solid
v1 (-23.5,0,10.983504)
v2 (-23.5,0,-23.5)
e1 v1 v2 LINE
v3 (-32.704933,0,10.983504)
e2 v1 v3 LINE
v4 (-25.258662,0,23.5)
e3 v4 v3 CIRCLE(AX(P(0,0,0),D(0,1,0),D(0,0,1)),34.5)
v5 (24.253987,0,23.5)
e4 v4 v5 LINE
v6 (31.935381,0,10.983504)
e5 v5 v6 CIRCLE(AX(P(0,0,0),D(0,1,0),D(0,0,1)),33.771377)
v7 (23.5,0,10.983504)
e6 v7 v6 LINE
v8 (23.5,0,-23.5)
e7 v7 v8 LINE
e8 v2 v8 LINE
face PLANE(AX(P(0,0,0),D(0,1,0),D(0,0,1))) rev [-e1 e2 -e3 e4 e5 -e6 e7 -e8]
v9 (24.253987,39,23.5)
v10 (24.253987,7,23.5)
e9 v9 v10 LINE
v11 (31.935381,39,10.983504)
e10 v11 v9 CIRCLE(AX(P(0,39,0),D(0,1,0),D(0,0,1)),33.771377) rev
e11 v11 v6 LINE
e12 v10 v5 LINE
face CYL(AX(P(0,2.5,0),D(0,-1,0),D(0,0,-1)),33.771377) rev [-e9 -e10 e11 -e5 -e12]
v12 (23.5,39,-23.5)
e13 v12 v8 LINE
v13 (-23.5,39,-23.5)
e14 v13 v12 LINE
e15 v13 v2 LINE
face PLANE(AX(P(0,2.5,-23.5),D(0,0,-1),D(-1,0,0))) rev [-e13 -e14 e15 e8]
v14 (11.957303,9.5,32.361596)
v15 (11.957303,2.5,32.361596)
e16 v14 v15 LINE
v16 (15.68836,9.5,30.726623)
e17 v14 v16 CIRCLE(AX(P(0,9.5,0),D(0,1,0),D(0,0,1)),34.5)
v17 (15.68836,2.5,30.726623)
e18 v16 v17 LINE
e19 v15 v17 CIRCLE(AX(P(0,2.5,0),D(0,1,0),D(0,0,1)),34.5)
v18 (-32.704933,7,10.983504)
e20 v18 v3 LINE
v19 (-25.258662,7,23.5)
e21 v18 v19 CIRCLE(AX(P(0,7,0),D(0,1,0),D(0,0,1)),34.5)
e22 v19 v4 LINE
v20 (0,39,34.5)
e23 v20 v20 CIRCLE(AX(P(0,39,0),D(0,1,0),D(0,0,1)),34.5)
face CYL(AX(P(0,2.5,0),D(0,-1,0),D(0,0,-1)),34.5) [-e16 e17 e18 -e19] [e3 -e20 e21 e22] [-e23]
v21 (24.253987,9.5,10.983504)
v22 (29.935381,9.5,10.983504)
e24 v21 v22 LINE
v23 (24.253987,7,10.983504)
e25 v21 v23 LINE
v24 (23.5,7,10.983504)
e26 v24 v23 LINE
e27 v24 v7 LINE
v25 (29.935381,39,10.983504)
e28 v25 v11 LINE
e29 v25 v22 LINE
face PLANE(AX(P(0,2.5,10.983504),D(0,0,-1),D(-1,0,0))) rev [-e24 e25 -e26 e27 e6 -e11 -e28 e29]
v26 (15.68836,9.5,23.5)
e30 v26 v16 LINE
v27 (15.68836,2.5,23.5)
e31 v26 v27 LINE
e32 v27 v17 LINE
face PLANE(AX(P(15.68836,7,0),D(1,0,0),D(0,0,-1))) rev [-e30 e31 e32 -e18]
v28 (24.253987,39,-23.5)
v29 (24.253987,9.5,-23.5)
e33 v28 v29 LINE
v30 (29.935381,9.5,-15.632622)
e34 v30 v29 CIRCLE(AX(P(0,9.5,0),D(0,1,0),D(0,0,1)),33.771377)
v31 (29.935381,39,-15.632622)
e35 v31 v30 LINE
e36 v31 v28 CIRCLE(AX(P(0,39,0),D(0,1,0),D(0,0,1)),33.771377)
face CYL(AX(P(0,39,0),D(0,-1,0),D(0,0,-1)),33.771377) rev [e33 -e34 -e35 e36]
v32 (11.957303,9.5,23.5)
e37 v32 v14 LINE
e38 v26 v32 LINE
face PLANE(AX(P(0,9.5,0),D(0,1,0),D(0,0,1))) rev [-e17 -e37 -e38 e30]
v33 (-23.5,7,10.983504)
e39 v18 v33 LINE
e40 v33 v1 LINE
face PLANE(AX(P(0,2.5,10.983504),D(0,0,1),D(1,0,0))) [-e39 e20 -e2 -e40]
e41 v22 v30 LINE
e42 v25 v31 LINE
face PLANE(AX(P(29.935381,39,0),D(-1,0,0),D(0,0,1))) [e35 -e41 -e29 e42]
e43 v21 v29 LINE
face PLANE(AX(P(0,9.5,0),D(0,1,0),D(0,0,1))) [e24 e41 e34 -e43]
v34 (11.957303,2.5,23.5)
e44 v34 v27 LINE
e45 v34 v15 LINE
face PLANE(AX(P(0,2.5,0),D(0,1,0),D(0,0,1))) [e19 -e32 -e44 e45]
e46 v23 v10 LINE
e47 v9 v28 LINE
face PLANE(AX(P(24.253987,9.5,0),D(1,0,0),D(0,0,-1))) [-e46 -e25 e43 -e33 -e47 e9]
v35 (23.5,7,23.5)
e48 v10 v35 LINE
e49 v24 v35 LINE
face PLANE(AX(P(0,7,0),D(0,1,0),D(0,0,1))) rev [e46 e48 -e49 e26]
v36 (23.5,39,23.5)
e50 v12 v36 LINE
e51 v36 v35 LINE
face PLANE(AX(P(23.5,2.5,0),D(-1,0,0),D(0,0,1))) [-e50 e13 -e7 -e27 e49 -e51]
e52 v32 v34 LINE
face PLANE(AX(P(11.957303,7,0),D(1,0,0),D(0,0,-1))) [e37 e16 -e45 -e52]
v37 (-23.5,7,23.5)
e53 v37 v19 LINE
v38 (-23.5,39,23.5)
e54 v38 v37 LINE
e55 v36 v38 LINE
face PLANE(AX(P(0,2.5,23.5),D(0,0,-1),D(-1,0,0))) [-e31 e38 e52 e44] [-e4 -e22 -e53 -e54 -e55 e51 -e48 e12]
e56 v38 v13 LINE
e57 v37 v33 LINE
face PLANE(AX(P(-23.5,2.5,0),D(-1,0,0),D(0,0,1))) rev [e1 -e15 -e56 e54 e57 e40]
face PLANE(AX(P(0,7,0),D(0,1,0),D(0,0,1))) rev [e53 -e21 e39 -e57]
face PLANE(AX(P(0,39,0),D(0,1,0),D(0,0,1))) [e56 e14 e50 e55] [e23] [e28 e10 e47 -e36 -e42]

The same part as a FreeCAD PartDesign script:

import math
import FreeCAD as App
import Part
import Sketcher

V = App.Vector


def add_polygon(sketch, points):
    """Adds a closed chain of lines whose ends are joined by coincident constraints."""
    first, n = sketch.GeometryCount, len(points)
    for a, b in zip(points, points[1:] + points[:1]):
        sketch.addGeometry(Part.LineSegment(App.Vector(*a, 0), App.Vector(*b, 0)), False)
    for i in range(n):
        sketch.addConstraint(Sketcher.Constraint("Coincident", first + i, 2, first + (i + 1) % n, 1))

doc = App.newDocument("Part")
body = doc.addObject("PartDesign::Body", "Body")

sketch1 = body.newObject("Sketcher::SketchObject", "Sketch")
sketch1.AttachmentSupport = (doc.getObject("XZ_Plane"), [""])
sketch1.MapMode = "FlatFace"
sketch1.addGeometry(Part.ArcOfCircle(Part.Circle(V(0, 0, 0), V(0, 0, 1), 34), math.radians(0), math.radians(137)), False)
sketch1.addGeometry(Part.ArcOfCircle(Part.Circle(V(0, 0, 0), V(0, 0, 1), 34), math.radians(161), math.radians(360)), False)
sketch1.addGeometry(Part.LineSegment(V(-33, 11, 0), V(-24, 11, 0)), False)
sketch1.addGeometry(Part.LineSegment(V(-24, 11, 0), V(-24, -24, 0)), False)
sketch1.addGeometry(Part.LineSegment(V(-24, -24, 0), V(24, -24, 0)), False)
sketch1.addGeometry(Part.LineSegment(V(24, -24, 0), V(24, 11, 0)), False)
sketch1.addGeometry(Part.LineSegment(V(24, 11, 0), V(32, 11, 0)), False)
sketch1.addGeometry(Part.ArcOfCircle(Part.Circle(V(0, 0, 0), V(0, 0, 1), 34), math.radians(19), math.radians(44)), False)
sketch1.addGeometry(Part.LineSegment(V(24, 24, 0), V(-25, 24, 0)), False)
sketch1.addConstraint(Sketcher.Constraint("Tangent", 0, 1, 1, 2))
sketch1.addConstraint(Sketcher.Constraint("Coincident", 1, 1, 2, 1))
sketch1.addConstraint(Sketcher.Constraint("Coincident", 2, 2, 3, 1))
sketch1.addConstraint(Sketcher.Constraint("Coincident", 3, 2, 4, 1))
sketch1.addConstraint(Sketcher.Constraint("Coincident", 4, 2, 5, 1))
sketch1.addConstraint(Sketcher.Constraint("Coincident", 5, 2, 6, 1))
sketch1.addConstraint(Sketcher.Constraint("Coincident", 6, 2, 7, 1))
sketch1.addConstraint(Sketcher.Constraint("Coincident", 7, 2, 8, 1))
sketch1.addConstraint(Sketcher.Constraint("Coincident", 8, 2, 0, 2))
sketch1.addConstraint(Sketcher.Constraint("Horizontal", 2))
sketch1.addConstraint(Sketcher.Constraint("Vertical", 3))
sketch1.addConstraint(Sketcher.Constraint("Horizontal", 4))
sketch1.addConstraint(Sketcher.Constraint("Vertical", 5))
sketch1.addConstraint(Sketcher.Constraint("Horizontal", 6))
sketch1.addConstraint(Sketcher.Constraint("Horizontal", 8))
sketch1.addConstraint(Sketcher.Constraint("Coincident", 0, 3, -1, 1))
sketch1.addConstraint(Sketcher.Constraint("Coincident", 7, 3, -1, 1))
sketch1.addConstraint(Sketcher.Constraint("Equal", 0, 1))
sketch1.addConstraint(Sketcher.Constraint("Symmetric", 2, 2, 5, 2, -2))
sketch1.addConstraint(Sketcher.Constraint("PointOnObject", 0, 1, -1))
sketch1.addConstraint(Sketcher.Constraint("Radius", 0, 34.5))
sketch1.addConstraint(Sketcher.Constraint("DistanceX", 4, 1, 4, 2, 47.0))
sketch1.addConstraint(Sketcher.Constraint("DistanceY", 3, 2, -1, 1, 23.5))
sketch1.addConstraint(Sketcher.Constraint("DistanceY", -1, 1, 7, 2, 23.5))
sketch1.addConstraint(Sketcher.Constraint("Radius", 7, 33.771377))
sketch1.addConstraint(Sketcher.Constraint("DistanceX", 6, 1, 6, 2, 8.435381))
pad1 = body.newObject("PartDesign::Pad", "Pad")
pad1.Profile = sketch1
pad1.Length = 2.5
pad1.Reversed = True

sketch2 = body.newObject("Sketcher::SketchObject", "Sketch001")
sketch2.AttachmentSupport = (doc.getObject("XZ_Plane"), [""])
sketch2.MapMode = "FlatFace"
sketch2.AttachmentOffset = App.Placement(V(0, 0, -2.5), App.Rotation())
sketch2.addGeometry(Part.LineSegment(V(24, -24, 0), V(24, 11, 0)), False)
sketch2.addGeometry(Part.LineSegment(V(24, 11, 0), V(32, 11, 0)), False)
sketch2.addGeometry(Part.ArcOfCircle(Part.Circle(V(0, 0, 0), V(0, 0, 1), 34), math.radians(19), math.radians(44)), False)
sketch2.addGeometry(Part.LineSegment(V(24, 24, 0), V(16, 24, 0)), False)
sketch2.addGeometry(Part.LineSegment(V(16, 24, 0), V(16, 31, 0)), False)
sketch2.addGeometry(Part.ArcOfCircle(Part.Circle(V(0, 0, 0), V(0, 0, 1), 34), math.radians(161), math.radians(423)), False)
sketch2.addGeometry(Part.LineSegment(V(-33, 11, 0), V(-24, 11, 0)), False)
sketch2.addGeometry(Part.LineSegment(V(-24, 11, 0), V(-24, -24, 0)), False)
sketch2.addGeometry(Part.LineSegment(V(-24, -24, 0), V(24, -24, 0)), False)
sketch2.addGeometry(Part.LineSegment(V(12, 24, 0), V(-25, 24, 0)), False)
sketch2.addGeometry(Part.ArcOfCircle(Part.Circle(V(0, 0, 0), V(0, 0, 1), 34), math.radians(70), math.radians(137)), False)
sketch2.addGeometry(Part.LineSegment(V(12, 32, 0), V(12, 24, 0)), False)
sketch2.addConstraint(Sketcher.Constraint("Coincident", 0, 2, 1, 1))
sketch2.addConstraint(Sketcher.Constraint("Coincident", 1, 2, 2, 1))
sketch2.addConstraint(Sketcher.Constraint("Coincident", 2, 2, 3, 1))
sketch2.addConstraint(Sketcher.Constraint("Coincident", 3, 2, 4, 1))
sketch2.addConstraint(Sketcher.Constraint("Coincident", 4, 2, 5, 2))
sketch2.addConstraint(Sketcher.Constraint("Coincident", 5, 1, 6, 1))
sketch2.addConstraint(Sketcher.Constraint("Coincident", 6, 2, 7, 1))
sketch2.addConstraint(Sketcher.Constraint("Coincident", 7, 2, 8, 1))
sketch2.addConstraint(Sketcher.Constraint("Coincident", 8, 2, 0, 1))
sketch2.addConstraint(Sketcher.Constraint("Coincident", 9, 2, 10, 2))
sketch2.addConstraint(Sketcher.Constraint("Coincident", 10, 1, 11, 1))
sketch2.addConstraint(Sketcher.Constraint("Coincident", 11, 2, 9, 1))
sketch2.addConstraint(Sketcher.Constraint("Vertical", 0))
sketch2.addConstraint(Sketcher.Constraint("Horizontal", 1))
sketch2.addConstraint(Sketcher.Constraint("Horizontal", 3))
sketch2.addConstraint(Sketcher.Constraint("Vertical", 4))
sketch2.addConstraint(Sketcher.Constraint("Horizontal", 6))
sketch2.addConstraint(Sketcher.Constraint("Vertical", 7))
sketch2.addConstraint(Sketcher.Constraint("Horizontal", 8))
sketch2.addConstraint(Sketcher.Constraint("Horizontal", 9))
sketch2.addConstraint(Sketcher.Constraint("Vertical", 11))
sketch2.addConstraint(Sketcher.Constraint("Coincident", 2, 3, -1, 1))
sketch2.addConstraint(Sketcher.Constraint("Coincident", 5, 3, -1, 1))
sketch2.addConstraint(Sketcher.Constraint("Coincident", 10, 3, -1, 1))
sketch2.addConstraint(Sketcher.Constraint("Equal", 5, 10))
sketch2.addConstraint(Sketcher.Constraint("Symmetric", 0, 2, 6, 2, -2))
sketch2.addConstraint(Sketcher.Constraint("Horizontal", 3, 2, 9, 2))
sketch2.addConstraint(Sketcher.Constraint("Radius", 5, 34.5))
sketch2.addConstraint(Sketcher.Constraint("DistanceX", 8, 1, 8, 2, 47.0))
sketch2.addConstraint(Sketcher.Constraint("DistanceY", -1, 1, 2, 2, 23.5))
sketch2.addConstraint(Sketcher.Constraint("DistanceY", 7, 2, -1, 1, 23.5))
sketch2.addConstraint(Sketcher.Constraint("Radius", 2, 33.771377))
sketch2.addConstraint(Sketcher.Constraint("DistanceX", 1, 1, 1, 2, 8.435381))
sketch2.addConstraint(Sketcher.Constraint("DistanceX", 3, 2, 3, 1, 8.565627))
sketch2.addConstraint(Sketcher.Constraint("DistanceX", 9, 2, 9, 1, 37.215965))
pad2 = body.newObject("PartDesign::Pad", "Pad001")
pad2.Profile = sketch2
pad2.Length = 4.5
pad2.Reversed = True

sketch3 = body.newObject("Sketcher::SketchObject", "Sketch002")
sketch3.AttachmentSupport = (doc.getObject("XZ_Plane"), [""])
sketch3.MapMode = "FlatFace"
sketch3.AttachmentOffset = App.Placement(V(0, 0, -7), App.Rotation())
sketch3.addGeometry(Part.LineSegment(V(-24, 24, 0), V(-24, -24, 0)), False)
sketch3.addGeometry(Part.LineSegment(V(-24, -24, 0), V(24, -24, 0)), False)
sketch3.addGeometry(Part.LineSegment(V(24, -24, 0), V(24, 11, 0)), False)
sketch3.addGeometry(Part.LineSegment(V(24, 11, 0), V(24, 24, 0)), False)
sketch3.addGeometry(Part.LineSegment(V(24, 24, 0), V(16, 24, 0)), False)
sketch3.addGeometry(Part.LineSegment(V(16, 24, 0), V(16, 31, 0)), False)
sketch3.addGeometry(Part.ArcOfCircle(Part.Circle(V(0, 0, 0), V(0, 0, 1), 34), math.radians(161), math.radians(423)), False)
sketch3.addGeometry(Part.ArcOfCircle(Part.Circle(V(0, 0, 0), V(0, 0, 1), 35), math.radians(70), math.radians(161)), False)
sketch3.addGeometry(Part.LineSegment(V(12, 32, 0), V(12, 24, 0)), False)
sketch3.addGeometry(Part.LineSegment(V(12, 24, 0), V(-24, 24, 0)), False)
sketch3.addGeometry(Part.ArcOfCircle(Part.Circle(V(0, 0, 0), V(0, 0, 1), 34), math.radians(19), math.radians(44)), False)
sketch3.addGeometry(Part.LineSegment(V(24, 24, 0), V(24, 11, 0)), False)
sketch3.addGeometry(Part.LineSegment(V(24, 11, 0), V(32, 11, 0)), False)
sketch3.addConstraint(Sketcher.Constraint("Coincident", 0, 2, 1, 1))
sketch3.addConstraint(Sketcher.Constraint("Coincident", 1, 2, 2, 1))
sketch3.addConstraint(Sketcher.Constraint("Coincident", 2, 2, 3, 1))
sketch3.addConstraint(Sketcher.Constraint("Coincident", 3, 2, 4, 1))
sketch3.addConstraint(Sketcher.Constraint("Coincident", 4, 2, 5, 1))
sketch3.addConstraint(Sketcher.Constraint("Coincident", 5, 2, 6, 2))
sketch3.addConstraint(Sketcher.Constraint("Tangent", 6, 1, 7, 2))
sketch3.addConstraint(Sketcher.Constraint("Coincident", 7, 1, 8, 1))
sketch3.addConstraint(Sketcher.Constraint("Coincident", 8, 2, 9, 1))
sketch3.addConstraint(Sketcher.Constraint("Coincident", 9, 2, 0, 1))
sketch3.addConstraint(Sketcher.Constraint("Coincident", 10, 2, 11, 1))
sketch3.addConstraint(Sketcher.Constraint("Coincident", 11, 2, 12, 1))
sketch3.addConstraint(Sketcher.Constraint("Coincident", 12, 2, 10, 1))
sketch3.addConstraint(Sketcher.Constraint("Vertical", 0))
sketch3.addConstraint(Sketcher.Constraint("Horizontal", 1))
sketch3.addConstraint(Sketcher.Constraint("Vertical", 2))
sketch3.addConstraint(Sketcher.Constraint("Vertical", 3))
sketch3.addConstraint(Sketcher.Constraint("Horizontal", 4))
sketch3.addConstraint(Sketcher.Constraint("Vertical", 5))
sketch3.addConstraint(Sketcher.Constraint("Vertical", 8))
sketch3.addConstraint(Sketcher.Constraint("Horizontal", 9))
sketch3.addConstraint(Sketcher.Constraint("Vertical", 11))
sketch3.addConstraint(Sketcher.Constraint("Horizontal", 12))
sketch3.addConstraint(Sketcher.Constraint("Coincident", 6, 3, -1, 1))
sketch3.addConstraint(Sketcher.Constraint("Coincident", 10, 3, -1, 1))
sketch3.addConstraint(Sketcher.Constraint("Equal", 6, 7))
sketch3.addConstraint(Sketcher.Constraint("Symmetric", 0, 2, 3, 2, -1, 1))
sketch3.addConstraint(Sketcher.Constraint("Horizontal", 2, 2, 6, 1))
sketch3.addConstraint(Sketcher.Constraint("Horizontal", 4, 2, 8, 2))
sketch3.addConstraint(Sketcher.Constraint("Horizontal", 9, 2, 10, 2))
sketch3.addConstraint(Sketcher.Constraint("Horizontal", 6, 1, 11, 2))
sketch3.addConstraint(Sketcher.Constraint("Equal", 1, 0))
sketch3.addConstraint(Sketcher.Constraint("Radius", 6, 34.5))
sketch3.addConstraint(Sketcher.Constraint("DistanceX", 1, 1, 1, 2, 47.0))
sketch3.addConstraint(Sketcher.Constraint("Radius", 10, 33.771377))
sketch3.addConstraint(Sketcher.Constraint("DistanceX", 4, 2, 4, 1, 7.81164))
sketch3.addConstraint(Sketcher.Constraint("DistanceX", 9, 2, 9, 1, 35.457303))
sketch3.addConstraint(Sketcher.Constraint("DistanceX", 12, 1, 12, 2, 7.681394))
pad3 = body.newObject("PartDesign::Pad", "Pad002")
pad3.Profile = sketch3
pad3.Length = 2.5
pad3.Reversed = True

sketch4 = body.newObject("Sketcher::SketchObject", "Sketch003")
sketch4.AttachmentSupport = (doc.getObject("XZ_Plane"), [""])
sketch4.MapMode = "FlatFace"
sketch4.AttachmentOffset = App.Placement(V(0, 0, -9.5), App.Rotation())
sketch4.addGeometry(Part.ArcOfCircle(Part.Circle(V(0, 0, 0), V(0, 0, 1), 34.5), math.radians(70), math.radians(360)), False)
sketch4.addGeometry(Part.ArcOfCircle(Part.Circle(V(0, 0, 0), V(0, 0, 1), 34.5), math.radians(62.95), math.radians(69.72)), False)
sketch4.addGeometry(Part.ArcOfCircle(Part.Circle(V(0, 0, 0), V(0, 0, 1), 34.5), math.radians(0), math.radians(63)), False)
add_polygon(sketch4, [(-23.5, 23.5), (-23.5, -23.5), (23.5, -23.5), (23.5, 23.5)])
sketch4.addGeometry(Part.LineSegment(V(29.9, 11, 0), V(31.9, 11, 0)), False)
sketch4.addGeometry(Part.ArcOfCircle(Part.Circle(V(0, 0, 0), V(0, 0, 1), 33.8), math.radians(19), math.radians(44)), False)
sketch4.addGeometry(Part.LineSegment(V(24.3, 23.5, 0), V(24.3, -23.5, 0)), False)
sketch4.addGeometry(Part.ArcOfCircle(Part.Circle(V(0, 0, 0), V(0, 0, 1), 33.8), math.radians(-44.1), math.radians(-27.57)), False)
sketch4.addGeometry(Part.LineSegment(V(29.9, -15.6, 0), V(29.9, 11, 0)), False)
sketch4.addConstraint(Sketcher.Constraint("Tangent", 0, 1, 1, 2))
sketch4.addConstraint(Sketcher.Constraint("Tangent", 1, 1, 2, 2))
sketch4.addConstraint(Sketcher.Constraint("Tangent", 2, 1, 0, 2))
sketch4.addConstraint(Sketcher.Constraint("Coincident", 7, 2, 8, 1))
sketch4.addConstraint(Sketcher.Constraint("Coincident", 8, 2, 9, 1))
sketch4.addConstraint(Sketcher.Constraint("Coincident", 9, 2, 10, 1))
sketch4.addConstraint(Sketcher.Constraint("Coincident", 10, 2, 11, 1))
sketch4.addConstraint(Sketcher.Constraint("Coincident", 11, 2, 7, 1))
sketch4.addConstraint(Sketcher.Constraint("Vertical", 3))
sketch4.addConstraint(Sketcher.Constraint("Horizontal", 4))
sketch4.addConstraint(Sketcher.Constraint("Vertical", 5))
sketch4.addConstraint(Sketcher.Constraint("Horizontal", 6))
sketch4.addConstraint(Sketcher.Constraint("Horizontal", 7))
sketch4.addConstraint(Sketcher.Constraint("Vertical", 9))
sketch4.addConstraint(Sketcher.Constraint("Vertical", 11))
sketch4.addConstraint(Sketcher.Constraint("Coincident", 0, 3, -1, 1))
sketch4.addConstraint(Sketcher.Constraint("Coincident", 8, 3, -1, 1))
sketch4.addConstraint(Sketcher.Constraint("Coincident", 10, 3, -1, 1))
sketch4.addConstraint(Sketcher.Constraint("Equal", 8, 10))
sketch4.addConstraint(Sketcher.Constraint("Symmetric", 3, 2, 5, 2, -1, 1))
sketch4.addConstraint(Sketcher.Constraint("PointOnObject", 2, 1, -1))
sketch4.addConstraint(Sketcher.Constraint("Horizontal", 6, 2, 8, 2))
sketch4.addConstraint(Sketcher.Constraint("Equal", 6, 3))
sketch4.addConstraint(Sketcher.Constraint("Radius", 0, 34.5))
sketch4.addConstraint(Sketcher.Constraint("DistanceX", 4, 1, 4, 2, 47.0))
sketch4.addConstraint(Sketcher.Constraint("DistanceX", 7, 1, 7, 2, 2.0))
sketch4.addConstraint(Sketcher.Constraint("Radius", 8, 33.771377))
sketch4.addConstraint(Sketcher.Constraint("DistanceY", 11, 1, 11, 2, 26.616126))
sketch4.addConstraint(Sketcher.Constraint("DistanceX", -1, 1, 1, 1, 15.68836))
sketch4.addConstraint(Sketcher.Constraint("DistanceX", 0, 1, 7, 2, 19.978078))
pad4 = body.newObject("PartDesign::Pad", "Pad003")
pad4.Profile = sketch4
pad4.Length = 29.5
pad4.Reversed = True

doc.recompute()
